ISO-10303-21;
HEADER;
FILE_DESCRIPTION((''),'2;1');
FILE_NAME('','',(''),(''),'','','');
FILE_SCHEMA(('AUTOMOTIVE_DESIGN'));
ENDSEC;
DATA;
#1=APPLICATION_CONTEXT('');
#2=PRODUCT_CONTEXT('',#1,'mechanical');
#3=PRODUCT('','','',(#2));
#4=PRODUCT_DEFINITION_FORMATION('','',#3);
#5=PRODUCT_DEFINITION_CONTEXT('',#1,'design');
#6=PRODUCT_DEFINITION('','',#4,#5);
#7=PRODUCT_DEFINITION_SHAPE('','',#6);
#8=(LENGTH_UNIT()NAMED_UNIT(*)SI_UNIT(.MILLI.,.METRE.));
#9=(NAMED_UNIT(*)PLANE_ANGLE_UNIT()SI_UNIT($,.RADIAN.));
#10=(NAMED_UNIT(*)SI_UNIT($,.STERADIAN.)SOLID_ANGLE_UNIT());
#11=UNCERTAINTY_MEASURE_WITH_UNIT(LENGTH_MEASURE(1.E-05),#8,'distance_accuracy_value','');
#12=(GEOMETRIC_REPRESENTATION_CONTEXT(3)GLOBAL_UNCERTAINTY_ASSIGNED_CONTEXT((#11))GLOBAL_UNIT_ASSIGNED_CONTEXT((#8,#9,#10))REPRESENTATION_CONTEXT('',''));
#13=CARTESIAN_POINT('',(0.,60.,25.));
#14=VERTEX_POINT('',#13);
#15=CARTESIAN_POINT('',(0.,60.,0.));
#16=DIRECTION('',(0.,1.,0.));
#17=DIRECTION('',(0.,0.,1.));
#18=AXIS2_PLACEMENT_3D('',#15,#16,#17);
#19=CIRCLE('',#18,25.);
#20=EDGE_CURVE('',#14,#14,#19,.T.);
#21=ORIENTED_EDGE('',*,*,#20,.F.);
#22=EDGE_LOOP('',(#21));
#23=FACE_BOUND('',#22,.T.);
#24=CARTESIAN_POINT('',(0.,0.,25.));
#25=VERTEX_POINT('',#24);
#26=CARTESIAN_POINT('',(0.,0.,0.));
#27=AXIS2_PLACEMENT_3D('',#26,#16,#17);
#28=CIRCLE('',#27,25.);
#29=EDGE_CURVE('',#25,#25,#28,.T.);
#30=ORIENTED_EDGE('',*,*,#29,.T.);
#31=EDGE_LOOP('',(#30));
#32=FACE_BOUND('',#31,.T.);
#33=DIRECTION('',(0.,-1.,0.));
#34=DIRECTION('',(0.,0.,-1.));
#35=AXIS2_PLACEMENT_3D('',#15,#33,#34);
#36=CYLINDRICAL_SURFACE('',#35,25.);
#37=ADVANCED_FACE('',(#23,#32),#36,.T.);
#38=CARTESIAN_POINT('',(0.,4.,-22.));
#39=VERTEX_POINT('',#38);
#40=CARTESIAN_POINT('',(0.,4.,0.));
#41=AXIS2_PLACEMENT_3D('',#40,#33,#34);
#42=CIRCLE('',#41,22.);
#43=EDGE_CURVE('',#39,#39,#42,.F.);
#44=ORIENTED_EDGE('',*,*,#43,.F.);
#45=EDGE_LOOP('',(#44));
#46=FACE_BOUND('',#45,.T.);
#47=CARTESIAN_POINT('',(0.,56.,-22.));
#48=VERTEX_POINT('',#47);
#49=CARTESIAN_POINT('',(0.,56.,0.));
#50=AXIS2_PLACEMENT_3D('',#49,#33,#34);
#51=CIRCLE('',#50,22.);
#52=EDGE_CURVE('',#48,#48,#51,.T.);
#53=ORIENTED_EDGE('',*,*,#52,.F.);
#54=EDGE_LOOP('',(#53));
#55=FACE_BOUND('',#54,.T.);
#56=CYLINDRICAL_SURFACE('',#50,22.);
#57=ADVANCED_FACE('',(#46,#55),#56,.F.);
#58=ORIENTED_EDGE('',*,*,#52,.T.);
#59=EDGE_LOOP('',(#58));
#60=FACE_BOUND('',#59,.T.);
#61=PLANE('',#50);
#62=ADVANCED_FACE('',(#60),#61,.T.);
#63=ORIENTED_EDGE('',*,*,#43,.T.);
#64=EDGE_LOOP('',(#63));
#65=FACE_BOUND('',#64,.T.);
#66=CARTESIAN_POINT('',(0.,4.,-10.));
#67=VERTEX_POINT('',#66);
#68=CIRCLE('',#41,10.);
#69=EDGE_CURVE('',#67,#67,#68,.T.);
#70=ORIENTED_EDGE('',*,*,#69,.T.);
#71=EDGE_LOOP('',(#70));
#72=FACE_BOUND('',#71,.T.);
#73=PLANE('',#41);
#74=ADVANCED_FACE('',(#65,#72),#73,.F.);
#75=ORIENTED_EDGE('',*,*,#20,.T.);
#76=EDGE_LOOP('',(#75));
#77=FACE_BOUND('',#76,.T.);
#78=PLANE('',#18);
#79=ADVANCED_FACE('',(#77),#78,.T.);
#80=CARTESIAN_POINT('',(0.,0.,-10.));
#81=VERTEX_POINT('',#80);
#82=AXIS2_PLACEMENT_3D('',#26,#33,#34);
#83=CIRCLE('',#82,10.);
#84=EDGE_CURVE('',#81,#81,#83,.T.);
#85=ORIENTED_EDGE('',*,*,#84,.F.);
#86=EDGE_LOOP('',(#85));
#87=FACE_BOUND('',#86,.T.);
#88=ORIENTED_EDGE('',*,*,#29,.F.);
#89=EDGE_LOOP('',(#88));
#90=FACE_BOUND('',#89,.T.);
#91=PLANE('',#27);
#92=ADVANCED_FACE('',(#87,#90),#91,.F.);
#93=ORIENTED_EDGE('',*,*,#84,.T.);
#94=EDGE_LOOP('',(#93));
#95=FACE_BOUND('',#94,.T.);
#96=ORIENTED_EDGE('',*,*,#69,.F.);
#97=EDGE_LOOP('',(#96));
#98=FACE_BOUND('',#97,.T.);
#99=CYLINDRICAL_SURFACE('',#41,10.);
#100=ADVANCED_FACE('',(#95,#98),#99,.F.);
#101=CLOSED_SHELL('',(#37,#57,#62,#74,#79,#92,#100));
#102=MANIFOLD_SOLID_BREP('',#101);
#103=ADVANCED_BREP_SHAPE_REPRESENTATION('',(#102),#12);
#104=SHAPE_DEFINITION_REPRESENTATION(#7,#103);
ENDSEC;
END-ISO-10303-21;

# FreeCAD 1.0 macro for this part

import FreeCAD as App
import Part
import Sketcher

doc = App.newDocument("Part")
body = doc.addObject("PartDesign::Body", "Body")

# Sketch on XZ plane
sketch1 = doc.addObject("Sketcher::SketchObject", "Sketch")
body.addObject(sketch1)
sketch1.AttachmentSupport = (doc.XZ_Plane, [""])
sketch1.MapMode = "FlatFace"
sketch1.addGeometry(Part.Circle(App.Vector(0, 0, 0), App.Vector(0, 0, 1), 25), False)
sketch1.addConstraint(Sketcher.Constraint("Coincident", 0, 3, -1, 1))
sketch1.addConstraint(Sketcher.Constraint("Diameter", 0, 50.0))
pad1 = doc.addObject("PartDesign::Pad", "Pad")
body.addObject(pad1)
pad1.Profile = sketch1
pad1.Length = 60
pad1.Reversed = True

# Sketch on XZ plane
sketch2 = doc.addObject("Sketcher::SketchObject", "Sketch001")
body.addObject(sketch2)
sketch2.AttachmentSupport = (doc.XZ_Plane, [""])
sketch2.MapMode = "FlatFace"
sketch2.addGeometry(Part.Circle(App.Vector(0, 0, 0), App.Vector(0, 0, 1), 22), False)
sketch2.addConstraint(Sketcher.Constraint("Coincident", 0, 3, -1, 1))
sketch2.addConstraint(Sketcher.Constraint("Diameter", 0, 44.0))
pocket1 = doc.addObject("PartDesign::Pocket", "Pocket")
body.addObject(pocket1)
pocket1.Profile = sketch2
pocket1.Length = 56

# Sketch on XZ plane
sketch3 = doc.addObject("Sketcher::SketchObject", "Sketch002")
body.addObject(sketch3)
sketch3.AttachmentSupport = (doc.XZ_Plane, [""])
sketch3.MapMode = "FlatFace"
sketch3.addGeometry(Part.Circle(App.Vector(0, 0, 0), App.Vector(0, 0, 1), 22), False)
sketch3.addGeometry(Part.Circle(App.Vector(0, 0, 0), App.Vector(0, 0, 1), 10), False)
sketch3.addConstraint(Sketcher.Constraint("Coincident", 0, 3, -1, 1))
sketch3.addConstraint(Sketcher.Constraint("Coincident", 1, 3, -1, 1))
sketch3.addConstraint(Sketcher.Constraint("Diameter", 0, 44.0))
sketch3.addConstraint(Sketcher.Constraint("Diameter", 1, 20.0))
pad2 = doc.addObject("PartDesign::Pad", "Pad001")
body.addObject(pad2)
pad2.Profile = sketch3
pad2.Length = 4
pad2.Reversed = True

doc.recompute()
